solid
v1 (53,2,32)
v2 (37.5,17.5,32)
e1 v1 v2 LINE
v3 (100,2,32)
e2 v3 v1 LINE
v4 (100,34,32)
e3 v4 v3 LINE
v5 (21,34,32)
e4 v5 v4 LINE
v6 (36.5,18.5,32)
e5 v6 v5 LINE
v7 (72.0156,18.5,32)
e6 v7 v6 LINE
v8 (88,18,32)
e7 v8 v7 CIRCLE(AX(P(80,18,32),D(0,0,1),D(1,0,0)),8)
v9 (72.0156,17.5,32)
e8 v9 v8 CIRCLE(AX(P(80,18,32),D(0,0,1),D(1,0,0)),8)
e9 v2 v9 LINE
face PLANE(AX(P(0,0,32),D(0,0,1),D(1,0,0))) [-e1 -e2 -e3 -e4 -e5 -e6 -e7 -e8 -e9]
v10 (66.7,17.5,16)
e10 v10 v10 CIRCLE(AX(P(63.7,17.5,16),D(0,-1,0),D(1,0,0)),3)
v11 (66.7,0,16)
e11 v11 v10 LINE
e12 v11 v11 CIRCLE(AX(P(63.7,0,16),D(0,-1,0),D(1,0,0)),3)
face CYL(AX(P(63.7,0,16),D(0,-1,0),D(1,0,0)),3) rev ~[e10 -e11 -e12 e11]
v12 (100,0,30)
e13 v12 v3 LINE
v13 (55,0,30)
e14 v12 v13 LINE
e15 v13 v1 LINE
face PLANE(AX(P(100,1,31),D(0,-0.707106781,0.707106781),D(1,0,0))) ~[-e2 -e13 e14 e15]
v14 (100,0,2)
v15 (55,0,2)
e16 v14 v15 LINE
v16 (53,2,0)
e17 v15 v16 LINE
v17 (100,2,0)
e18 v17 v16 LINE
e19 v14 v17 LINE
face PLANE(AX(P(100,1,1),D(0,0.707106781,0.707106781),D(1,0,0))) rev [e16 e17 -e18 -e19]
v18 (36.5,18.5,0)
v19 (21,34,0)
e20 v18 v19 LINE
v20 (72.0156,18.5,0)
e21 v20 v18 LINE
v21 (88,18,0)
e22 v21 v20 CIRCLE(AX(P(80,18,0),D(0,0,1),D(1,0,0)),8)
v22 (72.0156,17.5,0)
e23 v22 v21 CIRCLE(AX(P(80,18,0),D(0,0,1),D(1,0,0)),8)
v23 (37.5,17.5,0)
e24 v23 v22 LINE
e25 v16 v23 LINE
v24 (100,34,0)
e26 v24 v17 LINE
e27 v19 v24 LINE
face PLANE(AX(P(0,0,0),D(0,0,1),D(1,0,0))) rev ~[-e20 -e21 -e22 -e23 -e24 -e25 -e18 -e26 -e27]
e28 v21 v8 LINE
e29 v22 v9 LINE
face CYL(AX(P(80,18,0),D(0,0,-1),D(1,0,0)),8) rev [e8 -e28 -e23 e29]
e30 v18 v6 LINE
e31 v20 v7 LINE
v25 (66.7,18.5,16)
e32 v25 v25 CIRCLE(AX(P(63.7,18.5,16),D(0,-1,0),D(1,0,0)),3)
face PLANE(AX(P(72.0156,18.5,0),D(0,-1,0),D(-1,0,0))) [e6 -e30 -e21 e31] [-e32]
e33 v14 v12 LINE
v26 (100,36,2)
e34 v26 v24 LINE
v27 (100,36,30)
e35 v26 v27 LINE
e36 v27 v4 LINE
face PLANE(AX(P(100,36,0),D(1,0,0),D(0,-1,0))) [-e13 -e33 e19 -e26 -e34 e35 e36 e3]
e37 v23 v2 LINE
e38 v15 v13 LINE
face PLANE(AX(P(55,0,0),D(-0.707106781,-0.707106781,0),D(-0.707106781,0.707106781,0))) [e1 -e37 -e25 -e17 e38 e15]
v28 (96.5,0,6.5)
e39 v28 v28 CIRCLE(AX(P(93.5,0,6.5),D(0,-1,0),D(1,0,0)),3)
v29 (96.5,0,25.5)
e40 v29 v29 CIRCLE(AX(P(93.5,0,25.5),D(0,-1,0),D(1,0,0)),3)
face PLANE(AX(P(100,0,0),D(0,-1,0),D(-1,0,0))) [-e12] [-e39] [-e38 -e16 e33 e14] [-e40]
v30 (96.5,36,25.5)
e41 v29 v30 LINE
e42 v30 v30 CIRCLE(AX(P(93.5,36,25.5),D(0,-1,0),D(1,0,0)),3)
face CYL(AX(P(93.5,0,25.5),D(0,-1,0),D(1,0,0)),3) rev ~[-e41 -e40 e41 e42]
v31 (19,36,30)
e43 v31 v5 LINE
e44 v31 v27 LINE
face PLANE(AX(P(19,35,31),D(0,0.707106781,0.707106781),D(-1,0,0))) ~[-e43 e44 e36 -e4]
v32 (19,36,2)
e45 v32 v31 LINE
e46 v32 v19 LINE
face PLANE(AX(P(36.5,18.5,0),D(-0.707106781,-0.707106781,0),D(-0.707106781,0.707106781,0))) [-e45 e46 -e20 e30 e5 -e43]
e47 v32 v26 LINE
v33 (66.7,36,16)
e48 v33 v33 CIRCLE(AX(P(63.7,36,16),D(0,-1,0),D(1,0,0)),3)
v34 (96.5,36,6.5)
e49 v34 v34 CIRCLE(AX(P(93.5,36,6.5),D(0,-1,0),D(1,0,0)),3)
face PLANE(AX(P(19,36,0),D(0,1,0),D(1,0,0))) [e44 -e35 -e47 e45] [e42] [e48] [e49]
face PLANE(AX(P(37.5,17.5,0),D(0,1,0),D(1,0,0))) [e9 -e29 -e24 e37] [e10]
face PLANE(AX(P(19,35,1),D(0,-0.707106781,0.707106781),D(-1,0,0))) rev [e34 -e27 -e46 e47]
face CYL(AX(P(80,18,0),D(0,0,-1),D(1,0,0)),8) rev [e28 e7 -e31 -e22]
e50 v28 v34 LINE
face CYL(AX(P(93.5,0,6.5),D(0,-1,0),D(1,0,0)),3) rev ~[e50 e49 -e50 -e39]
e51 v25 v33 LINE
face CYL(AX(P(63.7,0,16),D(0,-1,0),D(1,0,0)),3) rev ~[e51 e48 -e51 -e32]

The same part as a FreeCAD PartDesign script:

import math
import FreeCAD as App
import Part
import Sketcher
Q = App.Units.Quantity


def edges_at(feature, points):
    """Names of the edges that pass closest to the given points."""
    edges = feature.Shape.Edges
    near = lambda p: min(range(len(edges)), key=lambda i: edges[i].distToShape(Part.Vertex(*p))[0])
    return sorted({f"Edge{near(p) + 1}" for p in points})

doc = App.newDocument("Part")
body = doc.addObject("PartDesign::Body", "Body")

# Sketch on XY plane
sketch1 = body.newObject("Sketcher::SketchObject", "Sketch")
sketch1.AttachmentSupport = (doc.getObject("XY_Plane"), [""])
sketch1.MapMode = "FlatFace"
sketch1.addGeometry(Part.LineSegment(App.Vector(100, 0, 0), App.Vector(100, 36, 0)), False)
sketch1.addGeometry(Part.LineSegment(App.Vector(100, 36, 0), App.Vector(19, 36, 0)), False)
sketch1.addGeometry(Part.LineSegment(App.Vector(19, 36, 0), App.Vector(36.5, 18.5, 0)), False)
sketch1.addGeometry(Part.LineSegment(App.Vector(36.5, 18.5, 0), App.Vector(72, 18.5, 0)), False)
sketch1.addGeometry(Part.ArcOfCircle(Part.Circle(App.Vector(80, 18, 0), App.Vector(0, 0, 1), 8), math.radians(-176), math.radians(176)), False)
sketch1.addGeometry(Part.LineSegment(App.Vector(72, 17.5, 0), App.Vector(37.5, 17.5, 0)), False)
sketch1.addGeometry(Part.LineSegment(App.Vector(37.5, 17.5, 0), App.Vector(55, 0, 0)), False)
sketch1.addGeometry(Part.LineSegment(App.Vector(55, 0, 0), App.Vector(100, 0, 0)), False)
sketch1.addConstraint(Sketcher.Constraint("Coincident", 0, 2, 1, 1))
sketch1.addConstraint(Sketcher.Constraint("Coincident", 1, 2, 2, 1))
sketch1.addConstraint(Sketcher.Constraint("Coincident", 2, 2, 3, 1))
sketch1.addConstraint(Sketcher.Constraint("Coincident", 3, 2, 4, 2))
sketch1.addConstraint(Sketcher.Constraint("Coincident", 4, 1, 5, 1))
sketch1.addConstraint(Sketcher.Constraint("Coincident", 5, 2, 6, 1))
sketch1.addConstraint(Sketcher.Constraint("Coincident", 6, 2, 7, 1))
sketch1.addConstraint(Sketcher.Constraint("Coincident", 7, 2, 0, 1))
sketch1.addConstraint(Sketcher.Constraint("Vertical", 0))
sketch1.addConstraint(Sketcher.Constraint("Horizontal", 1))
sketch1.addConstraint(Sketcher.Constraint("Horizontal", 3))
sketch1.addConstraint(Sketcher.Constraint("Horizontal", 5))
sketch1.addConstraint(Sketcher.Constraint("Horizontal", 7))
sketch1.addConstraint(Sketcher.Constraint("PointOnObject", 6, 2, -1))
sketch1.addConstraint(Sketcher.Constraint("Parallel", 2, 6))
sketch1.addConstraint(Sketcher.Constraint("Vertical", 3, 2, 4, 1))
sketch1.addConstraint(Sketcher.Constraint("Equal", 2, 6))
sketch1.addConstraint(Sketcher.Constraint("DistanceX", 7, 1, 7, 2, 45.0))
sketch1.addConstraint(Sketcher.Constraint("Angle", 2, Q("-45 deg")))
sketch1.addConstraint(Sketcher.Constraint("Radius", 4, 8.0))
sketch1.addConstraint(Sketcher.Constraint("DistanceY", 4, 1, 3, 2, 1.0))
sketch1.addConstraint(Sketcher.Constraint("DistanceX", 2, 2, 5, 2, 1.0))
sketch1.addConstraint(Sketcher.Constraint("DistanceX", 1, 2, 1, 1, 81.0))
sketch1.addConstraint(Sketcher.Constraint("DistanceX", -1, 1, 4, 3, 80.0))
sketch1.addConstraint(Sketcher.Constraint("DistanceX", -1, 1, 0, 2, 100.0))
pad1 = body.newObject("PartDesign::Pad", "Pad")
pad1.Profile = sketch1
pad1.Length = 32

# Sketch on XZ plane
sketch2 = body.newObject("Sketcher::SketchObject", "Sketch001")
sketch2.AttachmentSupport = (doc.getObject("XZ_Plane"), [""])
sketch2.MapMode = "FlatFace"
sketch2.addGeometry(Part.Circle(App.Vector(93.5, 25.5, 0), App.Vector(0, 0, 1), 3), False)
sketch2.addGeometry(Part.Circle(App.Vector(93.5, 6.5, 0), App.Vector(0, 0, 1), 3), False)
sketch2.addGeometry(Part.Circle(App.Vector(63.7, 16, 0), App.Vector(0, 0, 1), 3), False)
sketch2.addConstraint(Sketcher.Constraint("Equal", 0, 1))
sketch2.addConstraint(Sketcher.Constraint("Equal", 1, 2))
sketch2.addConstraint(Sketcher.Constraint("Vertical", 0, 3, 1, 3))
sketch2.addConstraint(Sketcher.Constraint("Diameter", 0, 6.0))
sketch2.addConstraint(Sketcher.Constraint("DistanceY", -1, 1, 2, 3, 16.0))
sketch2.addConstraint(Sketcher.Constraint("DistanceY", 1, 3, 0, 3, 19.0))
sketch2.addConstraint(Sketcher.Constraint("DistanceX", -1, 1, 0, 3, 93.5))
sketch2.addConstraint(Sketcher.Constraint("DistanceY", -1, 1, 0, 3, 25.5))
sketch2.addConstraint(Sketcher.Constraint("DistanceX", -1, 1, 2, 3, 63.7))
pocket1 = body.newObject("PartDesign::Pocket", "Pocket")
pocket1.Profile = sketch2
pocket1.Type = "ThroughAll"
doc.recompute()

chamfer = body.newObject("PartDesign::Chamfer", "Chamfer")
chamfer.Base = (pocket1, edges_at(pocket1, [
    (77.5, 0, 0),
    (59.5, 36, 0),
    (77.5, 0, 32),
    (59.5, 36, 32),
]))
chamfer.Size = 2

doc.recompute()
